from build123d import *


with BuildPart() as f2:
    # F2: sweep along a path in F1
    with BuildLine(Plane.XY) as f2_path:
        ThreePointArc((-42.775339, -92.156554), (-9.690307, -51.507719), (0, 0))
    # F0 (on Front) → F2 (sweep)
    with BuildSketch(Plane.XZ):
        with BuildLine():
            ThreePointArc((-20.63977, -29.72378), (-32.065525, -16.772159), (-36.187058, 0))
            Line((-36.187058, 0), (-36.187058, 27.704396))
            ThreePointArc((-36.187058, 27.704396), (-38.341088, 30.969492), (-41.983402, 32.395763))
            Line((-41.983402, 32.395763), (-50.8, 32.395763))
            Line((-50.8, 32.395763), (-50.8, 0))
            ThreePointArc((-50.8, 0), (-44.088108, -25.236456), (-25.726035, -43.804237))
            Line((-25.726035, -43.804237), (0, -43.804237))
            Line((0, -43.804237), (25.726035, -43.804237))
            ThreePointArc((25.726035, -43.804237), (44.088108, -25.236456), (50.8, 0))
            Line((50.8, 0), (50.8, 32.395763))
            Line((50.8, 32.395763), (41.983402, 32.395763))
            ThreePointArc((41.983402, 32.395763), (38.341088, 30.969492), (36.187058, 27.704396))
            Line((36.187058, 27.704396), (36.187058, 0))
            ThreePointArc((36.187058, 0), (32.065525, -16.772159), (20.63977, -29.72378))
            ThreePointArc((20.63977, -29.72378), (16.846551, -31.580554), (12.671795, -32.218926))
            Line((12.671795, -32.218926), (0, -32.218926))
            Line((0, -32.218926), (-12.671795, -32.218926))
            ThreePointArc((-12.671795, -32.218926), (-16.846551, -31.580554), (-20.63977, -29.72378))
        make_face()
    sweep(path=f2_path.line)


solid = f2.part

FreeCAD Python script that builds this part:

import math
import FreeCAD as App
import Part
import Sketcher

V = App.Vector
Q = App.Units.Quantity

doc = App.newDocument("Part")
body = doc.addObject("PartDesign::Body", "Body")

sketch1 = doc.addObject("Sketcher::SketchObject", "Sketch")
body.addObject(sketch1)
sketch1.AttachmentSupport = (doc.XZ_Plane, [""])
sketch1.MapMode = "FlatFace"
sketch1.addGeometry(Part.ArcOfCircle(Part.Circle(V(0, 0, 0), V(0, 0, 1), 36), math.radians(180), math.radians(235)), False)
sketch1.addGeometry(Part.LineSegment(V(-36, 0, 0), V(-36, 28, 0)), False)
sketch1.addGeometry(Part.ArcOfCircle(Part.Circle(V(-42, 26, 0), V(0, 0, 1), 6), math.radians(16), math.radians(86)), False)
sketch1.addGeometry(Part.LineSegment(V(-42, 32, 0), V(-51, 32, 0)), False)
sketch1.addGeometry(Part.LineSegment(V(-51, 32, 0), V(-51, 0, 0)), False)
sketch1.addGeometry(Part.ArcOfCircle(Part.Circle(V(0, 0, 0), V(0, 0, 1), 51), math.radians(-180), math.radians(-120)), False)
sketch1.addGeometry(Part.LineSegment(V(-26, -44, 0), V(26, -44, 0)), False)
sketch1.addGeometry(Part.ArcOfCircle(Part.Circle(V(0, 0, 0), V(0, 0, 1), 51), math.radians(-60), math.radians(0)), False)
sketch1.addGeometry(Part.LineSegment(V(51, 0, 0), V(51, 32, 0)), False)
sketch1.addGeometry(Part.LineSegment(V(51, 32, 0), V(42, 32, 0)), False)
sketch1.addGeometry(Part.ArcOfCircle(Part.Circle(V(42, 26, 0), V(0, 0, 1), 6), math.radians(94), math.radians(164)), False)
sketch1.addGeometry(Part.LineSegment(V(36, 28, 0), V(36, 0, 0)), False)
sketch1.addGeometry(Part.ArcOfCircle(Part.Circle(V(0, 0, 0), V(0, 0, 1), 36), math.radians(-55), math.radians(0)), False)
sketch1.addGeometry(Part.ArcOfCircle(Part.Circle(V(13, -18, 0), V(0, 0, 1), 14), math.radians(-90), math.radians(-55)), False)
sketch1.addGeometry(Part.LineSegment(V(13, -32, 0), V(-13, -32, 0)), False)
sketch1.addGeometry(Part.ArcOfCircle(Part.Circle(V(-13, -18, 0), V(0, 0, 1), 14), math.radians(-125), math.radians(-90)), False)
sketch1.addConstraint(Sketcher.Constraint("Tangent", 0, 1, 1, 1))
sketch1.addConstraint(Sketcher.Constraint("Coincident", 1, 2, 2, 1))
sketch1.addConstraint(Sketcher.Constraint("Coincident", 2, 2, 3, 1))
sketch1.addConstraint(Sketcher.Constraint("Coincident", 3, 2, 4, 1))
sketch1.addConstraint(Sketcher.Constraint("Tangent", 4, 2, 5, 1))
sketch1.addConstraint(Sketcher.Constraint("Coincident", 5, 2, 6, 1))
sketch1.addConstraint(Sketcher.Constraint("Coincident", 6, 2, 7, 1))
sketch1.addConstraint(Sketcher.Constraint("Tangent", 7, 2, 8, 1))
sketch1.addConstraint(Sketcher.Constraint("Coincident", 8, 2, 9, 1))
sketch1.addConstraint(Sketcher.Constraint("Coincident", 9, 2, 10, 1))
sketch1.addConstraint(Sketcher.Constraint("Coincident", 10, 2, 11, 1))
sketch1.addConstraint(Sketcher.Constraint("Tangent", 11, 2, 12, 2))
sketch1.addConstraint(Sketcher.Constraint("Tangent", 12, 1, 13, 2))
sketch1.addConstraint(Sketcher.Constraint("Tangent", 13, 1, 14, 1))
sketch1.addConstraint(Sketcher.Constraint("Tangent", 14, 2, 15, 2))
sketch1.addConstraint(Sketcher.Constraint("Tangent", 15, 1, 0, 2))
sketch1.addConstraint(Sketcher.Constraint("Vertical", 1))
sketch1.addConstraint(Sketcher.Constraint("Horizontal", 3))
sketch1.addConstraint(Sketcher.Constraint("Vertical", 4))
sketch1.addConstraint(Sketcher.Constraint("Horizontal", 6))
sketch1.addConstraint(Sketcher.Constraint("Vertical", 8))
sketch1.addConstraint(Sketcher.Constraint("Horizontal", 9))
sketch1.addConstraint(Sketcher.Constraint("Vertical", 11))
sketch1.addConstraint(Sketcher.Constraint("Horizontal", 14))
sketch1.addConstraint(Sketcher.Constraint("Coincident", 0, 3, -1, 1))
sketch1.addConstraint(Sketcher.Constraint("Coincident", 5, 3, -1, 1))
sketch1.addConstraint(Sketcher.Constraint("Coincident", 7, 3, -1, 1))
sketch1.addConstraint(Sketcher.Constraint("Coincident", 12, 3, -1, 1))
sketch1.addConstraint(Sketcher.Constraint("Equal", 5, 7))
sketch1.addConstraint(Sketcher.Constraint("Equal", 2, 10))
sketch1.addConstraint(Sketcher.Constraint("Equal", 0, 12))
sketch1.addConstraint(Sketcher.Constraint("Equal", 13, 15))
sketch1.addConstraint(Sketcher.Constraint("Symmetric", 2, 3, 10, 3, -2))
sketch1.addConstraint(Sketcher.Constraint("Horizontal", 3, 2, 8, 2))
sketch1.addConstraint(Sketcher.Constraint("DistanceX", 3, 2, -1, 1, Q("50.8 mm")))
sketch1.addConstraint(Sketcher.Constraint("Radius", 2, Q("6.467882 mm")))
sketch1.addConstraint(Sketcher.Constraint("Radius", 0, Q("36.187055 mm")))
sketch1.addConstraint(Sketcher.Constraint("Radius", 13, Q("13.970005 mm")))
sketch1.addConstraint(Sketcher.Constraint("DistanceX", 6, 1, 6, 2, Q("51.45207 mm")))
sketch1.addConstraint(Sketcher.Constraint("DistanceX", 14, 2, 14, 1, Q("25.34359 mm")))
sketch1.addConstraint(Sketcher.Constraint("DistanceX", -1, 1, 9, 2, Q("41.983402 mm")))
sketch1.addConstraint(Sketcher.Constraint("DistanceY", 13, 3, 10, 3, Q("44.190898 mm")))
sketch1.addConstraint(Sketcher.Constraint("DistanceY", 1, 1, 1, 2, Q("27.704396 mm")))

sketch2 = doc.addObject("Sketcher::SketchObject", "Sketch001")
body.addObject(sketch2)
sketch2.AttachmentSupport = (doc.XY_Plane, [""])
sketch2.MapMode = "FlatFace"
sketch2.addGeometry(Part.ArcOfCircle(Part.Circle(V(-106, -7, 0), V(0, 0, 1), 107), math.radians(-53), math.radians(4)), False)
sketch2.addConstraint(Sketcher.Constraint("Coincident", 0, 2, -1, 1))
sketch2.addConstraint(Sketcher.Constraint("Radius", 0, Q("106.503744 mm")))
sketch2.addConstraint(Sketcher.Constraint("DistanceY", 0, 3, -1, 1, Q("6.66782 mm")))
sketch2.addConstraint(Sketcher.Constraint("DistanceX", 0, 1, -1, 1, Q("42.775339 mm")))
doc.recompute()

additivepipe = doc.addObject("PartDesign::AdditivePipe", "AdditivePipe")
body.addObject(additivepipe)
additivepipe.Profile = sketch1
additivepipe.Spine = (sketch2, ["Edge1"])

doc.recompute()
